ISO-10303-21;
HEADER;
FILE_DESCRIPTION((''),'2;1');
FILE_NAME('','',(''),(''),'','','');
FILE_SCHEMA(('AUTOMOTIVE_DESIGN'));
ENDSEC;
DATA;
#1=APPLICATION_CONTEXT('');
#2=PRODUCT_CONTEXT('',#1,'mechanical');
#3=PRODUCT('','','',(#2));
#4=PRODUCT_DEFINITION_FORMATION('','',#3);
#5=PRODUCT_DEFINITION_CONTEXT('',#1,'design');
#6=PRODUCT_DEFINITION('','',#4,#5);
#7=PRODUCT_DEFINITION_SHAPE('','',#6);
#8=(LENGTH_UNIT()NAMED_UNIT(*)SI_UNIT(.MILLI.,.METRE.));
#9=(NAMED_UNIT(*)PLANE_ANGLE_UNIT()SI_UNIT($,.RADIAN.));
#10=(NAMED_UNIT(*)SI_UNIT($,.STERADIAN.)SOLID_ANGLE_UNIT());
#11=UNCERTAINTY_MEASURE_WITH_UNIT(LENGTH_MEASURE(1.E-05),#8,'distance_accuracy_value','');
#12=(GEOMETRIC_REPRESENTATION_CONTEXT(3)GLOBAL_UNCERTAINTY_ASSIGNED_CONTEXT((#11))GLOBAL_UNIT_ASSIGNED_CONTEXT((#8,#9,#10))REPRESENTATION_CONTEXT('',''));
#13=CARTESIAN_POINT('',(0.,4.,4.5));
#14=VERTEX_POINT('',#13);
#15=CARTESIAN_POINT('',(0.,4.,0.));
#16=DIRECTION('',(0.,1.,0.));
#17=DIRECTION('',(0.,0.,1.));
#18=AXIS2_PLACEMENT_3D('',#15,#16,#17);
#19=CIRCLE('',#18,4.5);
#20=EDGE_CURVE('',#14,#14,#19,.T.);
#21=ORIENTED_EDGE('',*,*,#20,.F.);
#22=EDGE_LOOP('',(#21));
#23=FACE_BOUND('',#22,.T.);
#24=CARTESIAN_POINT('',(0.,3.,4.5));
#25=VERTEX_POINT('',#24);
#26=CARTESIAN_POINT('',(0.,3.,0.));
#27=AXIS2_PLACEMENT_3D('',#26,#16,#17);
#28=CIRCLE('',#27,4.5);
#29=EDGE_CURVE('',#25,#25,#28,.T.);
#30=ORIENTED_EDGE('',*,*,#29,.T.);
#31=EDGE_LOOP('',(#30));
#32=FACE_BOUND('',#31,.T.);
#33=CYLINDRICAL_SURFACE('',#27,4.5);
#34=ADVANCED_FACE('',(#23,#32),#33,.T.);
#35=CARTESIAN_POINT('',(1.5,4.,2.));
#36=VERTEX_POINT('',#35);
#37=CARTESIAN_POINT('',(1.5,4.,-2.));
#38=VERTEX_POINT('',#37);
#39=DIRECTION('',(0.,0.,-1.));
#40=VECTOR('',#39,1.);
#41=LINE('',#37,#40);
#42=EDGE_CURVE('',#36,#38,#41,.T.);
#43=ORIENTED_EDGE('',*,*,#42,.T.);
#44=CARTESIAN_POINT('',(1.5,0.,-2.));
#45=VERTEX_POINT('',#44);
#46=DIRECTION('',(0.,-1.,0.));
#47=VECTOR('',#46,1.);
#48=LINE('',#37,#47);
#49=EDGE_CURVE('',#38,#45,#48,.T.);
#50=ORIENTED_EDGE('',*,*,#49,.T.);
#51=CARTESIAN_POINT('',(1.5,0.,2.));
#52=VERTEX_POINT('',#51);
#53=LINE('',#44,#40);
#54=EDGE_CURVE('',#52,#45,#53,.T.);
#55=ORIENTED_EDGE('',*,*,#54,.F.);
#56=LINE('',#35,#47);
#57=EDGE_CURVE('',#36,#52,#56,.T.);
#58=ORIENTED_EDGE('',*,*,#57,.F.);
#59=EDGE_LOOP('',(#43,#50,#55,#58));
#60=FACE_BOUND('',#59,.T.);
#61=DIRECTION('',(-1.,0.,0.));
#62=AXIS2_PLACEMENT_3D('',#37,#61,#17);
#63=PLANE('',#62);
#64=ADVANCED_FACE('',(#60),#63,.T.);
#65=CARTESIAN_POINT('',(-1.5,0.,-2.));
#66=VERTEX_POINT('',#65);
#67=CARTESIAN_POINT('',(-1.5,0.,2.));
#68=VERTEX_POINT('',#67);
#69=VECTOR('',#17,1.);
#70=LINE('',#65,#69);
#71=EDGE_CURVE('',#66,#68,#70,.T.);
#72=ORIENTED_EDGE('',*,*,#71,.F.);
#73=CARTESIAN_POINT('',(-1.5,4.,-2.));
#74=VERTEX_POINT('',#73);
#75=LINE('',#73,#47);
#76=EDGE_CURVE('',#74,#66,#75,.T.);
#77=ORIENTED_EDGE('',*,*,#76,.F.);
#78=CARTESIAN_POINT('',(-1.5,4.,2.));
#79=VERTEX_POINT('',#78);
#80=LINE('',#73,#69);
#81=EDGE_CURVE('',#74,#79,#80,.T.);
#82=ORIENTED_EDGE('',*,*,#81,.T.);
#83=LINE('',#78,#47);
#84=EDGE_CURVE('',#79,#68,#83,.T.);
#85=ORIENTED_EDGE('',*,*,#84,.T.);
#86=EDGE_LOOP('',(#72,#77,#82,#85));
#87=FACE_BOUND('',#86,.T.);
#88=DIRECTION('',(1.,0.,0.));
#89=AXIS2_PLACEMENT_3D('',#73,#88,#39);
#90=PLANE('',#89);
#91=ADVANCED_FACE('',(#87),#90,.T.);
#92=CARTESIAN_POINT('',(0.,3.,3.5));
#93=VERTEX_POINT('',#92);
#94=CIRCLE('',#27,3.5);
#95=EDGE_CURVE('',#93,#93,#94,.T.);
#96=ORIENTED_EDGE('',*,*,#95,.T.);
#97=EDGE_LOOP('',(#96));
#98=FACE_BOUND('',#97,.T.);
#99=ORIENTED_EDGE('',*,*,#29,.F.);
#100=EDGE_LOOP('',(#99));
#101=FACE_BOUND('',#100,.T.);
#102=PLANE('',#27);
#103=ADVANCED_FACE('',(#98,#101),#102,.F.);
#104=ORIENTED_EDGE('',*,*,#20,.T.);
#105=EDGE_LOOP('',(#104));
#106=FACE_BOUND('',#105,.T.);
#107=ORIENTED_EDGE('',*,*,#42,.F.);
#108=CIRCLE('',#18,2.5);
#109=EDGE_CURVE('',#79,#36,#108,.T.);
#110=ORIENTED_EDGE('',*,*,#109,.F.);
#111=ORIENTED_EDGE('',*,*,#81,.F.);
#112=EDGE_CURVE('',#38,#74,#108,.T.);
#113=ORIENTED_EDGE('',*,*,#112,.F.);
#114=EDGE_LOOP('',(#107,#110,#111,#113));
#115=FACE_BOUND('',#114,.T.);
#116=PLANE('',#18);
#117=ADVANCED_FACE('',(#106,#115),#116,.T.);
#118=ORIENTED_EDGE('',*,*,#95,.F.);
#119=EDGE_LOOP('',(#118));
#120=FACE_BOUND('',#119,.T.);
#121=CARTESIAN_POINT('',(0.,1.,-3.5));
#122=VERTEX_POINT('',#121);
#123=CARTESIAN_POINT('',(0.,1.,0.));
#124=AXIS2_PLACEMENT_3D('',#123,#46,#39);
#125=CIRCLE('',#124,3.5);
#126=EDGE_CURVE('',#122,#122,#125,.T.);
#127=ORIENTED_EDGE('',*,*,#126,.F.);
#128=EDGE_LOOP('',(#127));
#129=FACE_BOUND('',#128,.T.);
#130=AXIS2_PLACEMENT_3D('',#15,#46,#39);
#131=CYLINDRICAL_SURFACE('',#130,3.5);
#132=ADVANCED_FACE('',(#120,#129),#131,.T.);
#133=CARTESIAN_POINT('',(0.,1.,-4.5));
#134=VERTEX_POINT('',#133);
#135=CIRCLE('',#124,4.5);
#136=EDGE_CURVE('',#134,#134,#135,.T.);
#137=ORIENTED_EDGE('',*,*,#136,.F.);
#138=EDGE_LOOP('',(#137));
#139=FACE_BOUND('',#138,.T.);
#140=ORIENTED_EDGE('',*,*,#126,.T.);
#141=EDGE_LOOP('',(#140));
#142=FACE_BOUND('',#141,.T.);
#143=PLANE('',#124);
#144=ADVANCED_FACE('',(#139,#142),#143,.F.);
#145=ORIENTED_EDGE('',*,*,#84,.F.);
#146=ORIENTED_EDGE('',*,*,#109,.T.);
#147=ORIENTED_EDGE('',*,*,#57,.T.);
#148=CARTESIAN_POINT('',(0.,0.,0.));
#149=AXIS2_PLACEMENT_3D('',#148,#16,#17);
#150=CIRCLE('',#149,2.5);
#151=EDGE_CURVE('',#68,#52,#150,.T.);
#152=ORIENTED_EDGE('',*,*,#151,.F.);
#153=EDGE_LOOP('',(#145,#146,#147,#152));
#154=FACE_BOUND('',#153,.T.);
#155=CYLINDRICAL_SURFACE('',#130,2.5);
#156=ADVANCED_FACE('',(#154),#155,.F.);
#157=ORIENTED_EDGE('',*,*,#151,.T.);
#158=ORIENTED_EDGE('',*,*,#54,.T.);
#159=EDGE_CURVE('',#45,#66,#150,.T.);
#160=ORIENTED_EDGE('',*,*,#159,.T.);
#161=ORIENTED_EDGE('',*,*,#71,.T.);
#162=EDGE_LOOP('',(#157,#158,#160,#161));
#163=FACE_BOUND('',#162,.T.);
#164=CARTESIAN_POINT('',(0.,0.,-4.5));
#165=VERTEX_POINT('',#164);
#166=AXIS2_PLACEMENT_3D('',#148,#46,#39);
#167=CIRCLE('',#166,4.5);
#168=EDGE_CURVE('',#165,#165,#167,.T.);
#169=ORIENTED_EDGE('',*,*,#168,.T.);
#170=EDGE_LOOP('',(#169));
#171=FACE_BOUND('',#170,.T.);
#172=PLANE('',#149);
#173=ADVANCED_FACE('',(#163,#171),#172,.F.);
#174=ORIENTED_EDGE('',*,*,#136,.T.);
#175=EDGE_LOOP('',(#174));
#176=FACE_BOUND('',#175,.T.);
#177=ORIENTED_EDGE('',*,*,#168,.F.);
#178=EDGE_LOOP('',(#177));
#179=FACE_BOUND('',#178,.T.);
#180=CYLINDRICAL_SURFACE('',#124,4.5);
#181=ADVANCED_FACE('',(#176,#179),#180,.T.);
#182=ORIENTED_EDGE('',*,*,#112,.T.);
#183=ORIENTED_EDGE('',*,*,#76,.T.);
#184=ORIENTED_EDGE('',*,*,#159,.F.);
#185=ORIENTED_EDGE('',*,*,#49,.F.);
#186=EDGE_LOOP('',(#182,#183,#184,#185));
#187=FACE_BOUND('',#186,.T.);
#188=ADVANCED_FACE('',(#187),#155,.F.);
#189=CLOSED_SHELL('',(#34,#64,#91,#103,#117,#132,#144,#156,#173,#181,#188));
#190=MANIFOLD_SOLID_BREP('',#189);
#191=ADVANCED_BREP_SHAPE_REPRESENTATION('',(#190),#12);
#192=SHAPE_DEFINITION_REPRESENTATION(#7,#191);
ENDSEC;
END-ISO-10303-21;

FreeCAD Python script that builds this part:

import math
import FreeCAD as App
import Part
import Sketcher
from FreeCAD import Vector

doc = App.newDocument("Part")
body = doc.addObject("PartDesign::Body", "Body")

# Sketch on XZ plane
sketch1 = doc.addObject("Sketcher::SketchObject", "Sketch")
body.addObject(sketch1)
sketch1.AttachmentSupport = (doc.XZ_Plane, [""])
sketch1.MapMode = "FlatFace"
sketch1.addGeometry(Part.Circle(Vector(0, 0, 0), Vector(0, 0, 1), 3.5), False)
sketch1.addGeometry(Part.LineSegment(Vector(-1.5, 2, 0), Vector(-1.5, -2, 0)), False)
sketch1.addGeometry(Part.ArcOfCircle(Part.Circle(Vector(0, 0, 0), Vector(0, 0, 1), 2.5), math.radians(-127), math.radians(-53)), False)
sketch1.addGeometry(Part.LineSegment(Vector(1.5, -2, 0), Vector(1.5, 2, 0)), False)
sketch1.addGeometry(Part.ArcOfCircle(Part.Circle(Vector(0, 0, 0), Vector(0, 0, 1), 2.5), math.radians(53), math.radians(127)), False)
sketch1.addConstraint(Sketcher.Constraint("Coincident", 1, 2, 2, 1))
sketch1.addConstraint(Sketcher.Constraint("Coincident", 2, 2, 3, 1))
sketch1.addConstraint(Sketcher.Constraint("Coincident", 3, 2, 4, 1))
sketch1.addConstraint(Sketcher.Constraint("Coincident", 4, 2, 1, 1))
sketch1.addConstraint(Sketcher.Constraint("Vertical", 1))
sketch1.addConstraint(Sketcher.Constraint("Vertical", 3))
sketch1.addConstraint(Sketcher.Constraint("Coincident", 0, 3, -1, 1))
sketch1.addConstraint(Sketcher.Constraint("Coincident", 2, 3, -1, 1))
sketch1.addConstraint(Sketcher.Constraint("Coincident", 4, 3, -1, 1))
sketch1.addConstraint(Sketcher.Constraint("Equal", 2, 4))
sketch1.addConstraint(Sketcher.Constraint("Horizontal", 1, 2, 2, 2))
sketch1.addConstraint(Sketcher.Constraint("Diameter", 0, 7.0))
sketch1.addConstraint(Sketcher.Constraint("Radius", 2, 2.5))
sketch1.addConstraint(Sketcher.Constraint("DistanceY", 1, 2, 1, 1, 4.0))
pad1 = doc.addObject("PartDesign::Pad", "Pad")
body.addObject(pad1)
pad1.Profile = sketch1
pad1.Length = 4
pad1.Reversed = True

# Sketch on XZ plane
sketch2 = doc.addObject("Sketcher::SketchObject", "Sketch001")
body.addObject(sketch2)
sketch2.AttachmentSupport = (doc.XZ_Plane, [""])
sketch2.MapMode = "FlatFace"
sketch2.AttachmentOffset = App.Placement(Vector(0, 0, -3), App.Rotation())
sketch2.addGeometry(Part.Circle(Vector(0, 0, 0), Vector(0, 0, 1), 4.5), False)
sketch2.addGeometry(Part.Circle(Vector(0, 0, 0), Vector(0, 0, 1), 3.5), False)
sketch2.addConstraint(Sketcher.Constraint("Coincident", 0, 3, -1, 1))
sketch2.addConstraint(Sketcher.Constraint("Coincident", 1, 3, -1, 1))
sketch2.addConstraint(Sketcher.Constraint("Diameter", 0, 9.0))
sketch2.addConstraint(Sketcher.Constraint("Diameter", 1, 7.0))
pad2 = doc.addObject("PartDesign::Pad", "Pad001")
body.addObject(pad2)
pad2.Profile = sketch2
pad2.Length = 1
pad2.Reversed = True

# Sketch on XZ plane
sketch3 = doc.addObject("Sketcher::SketchObject", "Sketch002")
body.addObject(sketch3)
sketch3.AttachmentSupport = (doc.XZ_Plane, [""])
sketch3.MapMode = "FlatFace"
sketch3.addGeometry(Part.Circle(Vector(0, 0, 0), Vector(0, 0, 1), 4.5), False)
sketch3.addGeometry(Part.Circle(Vector(0, 0, 0), Vector(0, 0, 1), 3.5), False)
sketch3.addConstraint(Sketcher.Constraint("Coincident", 0, 3, -1, 1))
sketch3.addConstraint(Sketcher.Constraint("Coincident", 1, 3, -1, 1))
sketch3.addConstraint(Sketcher.Constraint("Diameter", 0, 9.0))
sketch3.addConstraint(Sketcher.Constraint("Diameter", 1, 7.0))
pad3 = doc.addObject("PartDesign::Pad", "Pad002")
body.addObject(pad3)
pad3.Profile = sketch3
pad3.Length = 1
pad3.Reversed = True

doc.recompute()
